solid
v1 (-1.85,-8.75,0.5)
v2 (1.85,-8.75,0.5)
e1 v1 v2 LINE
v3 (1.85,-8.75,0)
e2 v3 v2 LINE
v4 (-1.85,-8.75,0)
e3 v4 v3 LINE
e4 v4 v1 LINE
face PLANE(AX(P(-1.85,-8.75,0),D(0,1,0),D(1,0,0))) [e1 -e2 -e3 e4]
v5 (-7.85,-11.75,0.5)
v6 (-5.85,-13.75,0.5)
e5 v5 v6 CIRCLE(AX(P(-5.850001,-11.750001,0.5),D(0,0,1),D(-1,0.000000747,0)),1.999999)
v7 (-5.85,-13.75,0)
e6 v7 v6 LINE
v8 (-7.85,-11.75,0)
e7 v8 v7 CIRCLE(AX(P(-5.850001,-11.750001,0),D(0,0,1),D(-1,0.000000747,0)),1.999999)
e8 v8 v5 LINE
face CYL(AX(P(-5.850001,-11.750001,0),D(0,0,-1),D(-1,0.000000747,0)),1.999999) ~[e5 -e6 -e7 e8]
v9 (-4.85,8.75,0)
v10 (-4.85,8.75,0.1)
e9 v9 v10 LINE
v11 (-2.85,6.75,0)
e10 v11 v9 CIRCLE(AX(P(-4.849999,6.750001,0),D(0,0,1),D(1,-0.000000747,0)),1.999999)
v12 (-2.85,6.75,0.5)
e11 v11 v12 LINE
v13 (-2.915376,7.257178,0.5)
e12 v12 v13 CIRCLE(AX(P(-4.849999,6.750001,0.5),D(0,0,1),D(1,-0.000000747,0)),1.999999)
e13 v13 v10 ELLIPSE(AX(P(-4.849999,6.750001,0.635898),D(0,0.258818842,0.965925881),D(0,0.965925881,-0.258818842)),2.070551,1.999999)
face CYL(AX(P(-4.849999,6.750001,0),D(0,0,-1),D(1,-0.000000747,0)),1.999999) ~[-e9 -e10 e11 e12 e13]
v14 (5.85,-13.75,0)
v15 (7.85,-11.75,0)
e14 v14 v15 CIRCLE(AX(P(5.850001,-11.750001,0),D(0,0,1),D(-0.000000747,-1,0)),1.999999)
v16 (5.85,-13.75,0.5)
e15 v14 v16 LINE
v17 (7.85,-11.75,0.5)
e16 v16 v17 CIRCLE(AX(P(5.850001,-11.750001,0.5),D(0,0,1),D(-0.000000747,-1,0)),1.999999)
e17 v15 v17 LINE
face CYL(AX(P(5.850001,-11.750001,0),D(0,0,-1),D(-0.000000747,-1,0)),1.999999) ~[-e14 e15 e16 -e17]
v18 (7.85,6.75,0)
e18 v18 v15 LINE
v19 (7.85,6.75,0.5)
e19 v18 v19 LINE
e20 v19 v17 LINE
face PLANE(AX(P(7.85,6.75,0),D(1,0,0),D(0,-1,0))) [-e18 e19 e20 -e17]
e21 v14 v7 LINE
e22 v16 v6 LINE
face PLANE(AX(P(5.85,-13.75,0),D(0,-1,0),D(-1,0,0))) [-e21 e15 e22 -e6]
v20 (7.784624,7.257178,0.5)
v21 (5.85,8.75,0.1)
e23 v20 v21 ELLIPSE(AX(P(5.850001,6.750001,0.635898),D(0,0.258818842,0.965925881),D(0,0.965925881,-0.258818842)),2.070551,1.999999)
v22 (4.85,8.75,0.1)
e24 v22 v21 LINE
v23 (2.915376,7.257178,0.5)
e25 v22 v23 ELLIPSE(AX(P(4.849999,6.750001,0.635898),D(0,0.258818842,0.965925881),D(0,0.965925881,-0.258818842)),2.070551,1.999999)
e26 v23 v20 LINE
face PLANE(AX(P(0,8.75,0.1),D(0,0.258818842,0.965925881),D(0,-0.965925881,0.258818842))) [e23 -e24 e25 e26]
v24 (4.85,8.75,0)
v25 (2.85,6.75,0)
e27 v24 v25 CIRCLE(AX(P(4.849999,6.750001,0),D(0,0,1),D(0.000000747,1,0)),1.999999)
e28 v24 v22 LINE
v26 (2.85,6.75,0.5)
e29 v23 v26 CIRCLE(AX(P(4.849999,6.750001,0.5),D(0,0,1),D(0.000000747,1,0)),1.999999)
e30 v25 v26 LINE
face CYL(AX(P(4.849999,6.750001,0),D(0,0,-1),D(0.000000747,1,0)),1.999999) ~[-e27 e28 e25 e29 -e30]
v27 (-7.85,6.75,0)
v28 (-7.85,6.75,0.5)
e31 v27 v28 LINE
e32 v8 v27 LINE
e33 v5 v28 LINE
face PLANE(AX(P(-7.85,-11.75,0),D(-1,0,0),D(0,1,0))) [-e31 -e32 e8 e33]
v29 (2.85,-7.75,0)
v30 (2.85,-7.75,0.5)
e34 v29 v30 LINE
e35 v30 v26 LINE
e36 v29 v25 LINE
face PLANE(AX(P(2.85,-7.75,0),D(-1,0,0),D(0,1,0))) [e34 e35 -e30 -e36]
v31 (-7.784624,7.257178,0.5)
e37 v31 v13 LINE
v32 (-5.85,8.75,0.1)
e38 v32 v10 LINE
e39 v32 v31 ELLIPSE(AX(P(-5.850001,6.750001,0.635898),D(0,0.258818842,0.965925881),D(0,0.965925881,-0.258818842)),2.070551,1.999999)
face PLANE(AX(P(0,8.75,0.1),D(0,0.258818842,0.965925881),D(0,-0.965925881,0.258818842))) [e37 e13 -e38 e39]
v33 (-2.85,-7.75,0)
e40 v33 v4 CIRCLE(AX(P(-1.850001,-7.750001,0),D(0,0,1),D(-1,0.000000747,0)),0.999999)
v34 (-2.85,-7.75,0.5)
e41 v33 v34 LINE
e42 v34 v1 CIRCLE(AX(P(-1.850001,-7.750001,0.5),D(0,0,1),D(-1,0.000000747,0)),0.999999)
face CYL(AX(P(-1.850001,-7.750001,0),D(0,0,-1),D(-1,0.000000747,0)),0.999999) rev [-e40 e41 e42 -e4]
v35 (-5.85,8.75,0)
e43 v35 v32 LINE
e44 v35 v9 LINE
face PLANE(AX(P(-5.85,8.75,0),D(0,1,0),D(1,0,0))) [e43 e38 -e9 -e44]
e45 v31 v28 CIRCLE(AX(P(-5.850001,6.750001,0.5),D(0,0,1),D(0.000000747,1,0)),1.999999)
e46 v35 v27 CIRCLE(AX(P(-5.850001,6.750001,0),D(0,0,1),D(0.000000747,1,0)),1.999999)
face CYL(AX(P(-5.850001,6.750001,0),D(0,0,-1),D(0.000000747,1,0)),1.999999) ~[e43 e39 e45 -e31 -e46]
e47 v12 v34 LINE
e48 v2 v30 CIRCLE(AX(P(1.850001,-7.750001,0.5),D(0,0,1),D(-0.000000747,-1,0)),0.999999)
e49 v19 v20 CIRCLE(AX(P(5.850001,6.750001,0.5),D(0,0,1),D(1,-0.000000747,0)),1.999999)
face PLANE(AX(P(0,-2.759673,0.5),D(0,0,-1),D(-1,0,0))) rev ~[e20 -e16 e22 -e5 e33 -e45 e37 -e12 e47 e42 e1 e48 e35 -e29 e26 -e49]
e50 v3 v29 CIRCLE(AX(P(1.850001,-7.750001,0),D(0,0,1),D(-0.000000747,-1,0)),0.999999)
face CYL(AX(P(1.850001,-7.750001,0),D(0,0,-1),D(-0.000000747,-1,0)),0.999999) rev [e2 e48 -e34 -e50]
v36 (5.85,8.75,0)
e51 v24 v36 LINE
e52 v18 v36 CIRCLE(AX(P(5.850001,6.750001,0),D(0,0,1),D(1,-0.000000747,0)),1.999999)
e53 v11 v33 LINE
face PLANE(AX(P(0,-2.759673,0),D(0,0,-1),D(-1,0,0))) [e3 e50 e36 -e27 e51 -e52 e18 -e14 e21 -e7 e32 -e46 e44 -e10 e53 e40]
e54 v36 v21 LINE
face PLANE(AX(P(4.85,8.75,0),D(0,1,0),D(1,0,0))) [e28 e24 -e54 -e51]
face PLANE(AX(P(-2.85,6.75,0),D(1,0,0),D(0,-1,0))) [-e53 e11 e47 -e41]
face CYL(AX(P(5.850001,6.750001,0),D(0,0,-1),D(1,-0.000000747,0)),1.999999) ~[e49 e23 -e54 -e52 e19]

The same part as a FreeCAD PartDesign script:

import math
import FreeCAD as App
import Part
import Sketcher

V = App.Vector
Q = App.Units.Quantity

doc = App.newDocument("Part")
params = doc.addObject("Spreadsheet::Sheet", "Params")
for row, (alias, value) in enumerate([
    ("pad1_length", "40 mm"),
    ("sketch2_radius", "1.999999 mm"),
    ("sketch2_radius2", "0.999999 mm"),
    ("sketch2_width", "1 mm"),
    ("sketch2_width2", "11.7 mm"),
    ("sketch2_height", "14.5 mm"),
    ("pad2_length", "0.5 mm"),
], start=1):
    params.set(f"A{row}", alias)
    params.set(f"B{row}", "=" + value)
    params.setAlias(f"B{row}", alias)

body = doc.addObject("PartDesign::Body", "Body")

sketch1 = doc.addObject("Sketcher::SketchObject", "Sketch")
body.addObject(sketch1)
sketch1.AttachmentSupport = (doc.YZ_Plane, [""])
sketch1.MapMode = "FlatFace"
sketch1.addGeometry(Part.LineSegment(V(6.329819, 0.748485, 0), V(8.75, 0.1, 0)), False)
sketch1.addGeometry(Part.LineSegment(V(8.75, 0.1, 0), V(8.75, 0.748485, 0)), False)
sketch1.addGeometry(Part.LineSegment(V(8.75, 0.748485, 0), V(6.329819, 0.748485, 0)), False)
sketch1.addConstraint(Sketcher.Constraint("Coincident", 0, 2, 1, 1))
sketch1.addConstraint(Sketcher.Constraint("Coincident", 1, 2, 2, 1))
sketch1.addConstraint(Sketcher.Constraint("Coincident", 2, 2, 0, 1))
sketch1.addConstraint(Sketcher.Constraint("Vertical", 1))
sketch1.addConstraint(Sketcher.Constraint("Horizontal", 2))
sketch1.addConstraint(Sketcher.Constraint("Angle", 0, Q("-14.999988 deg")))
sketch1.addConstraint(Sketcher.Constraint("DistanceY", -1, 1, 0, 2, 0.1))
sketch1.addConstraint(Sketcher.Constraint("DistanceX", -1, 1, 0, 2, 8.75))
sketch1.addConstraint(Sketcher.Constraint("DistanceX", 2, 2, 2, 1, 2.420181))
pad1 = doc.addObject("PartDesign::Pad", "Pad")
body.addObject(pad1)
pad1.Profile = sketch1
pad1.setExpression("Length", "Params.pad1_length")
pad1.Midplane = True
body2 = doc.addObject("PartDesign::Body", "Body001")

sketch2 = doc.addObject("Sketcher::SketchObject", "Sketch001")
body2.addObject(sketch2)
sketch2.AttachmentSupport = (doc.getObject("XY_Plane001"), [""])
sketch2.MapMode = "FlatFace"
sketch2.addGeometry(Part.LineSegment(V(-2.85, -7.75, 0), V(-2.85, 6.75, 0)), False)
sketch2.addGeometry(Part.ArcOfCircle(Part.Circle(V(-4.849999, 6.750001, 0), V(0, 0, 1), 1.999999), math.radians(-0.000043), math.radians(90.000043)), False)
sketch2.addGeometry(Part.LineSegment(V(-4.85, 8.75, 0), V(-5.85, 8.75, 0)), False)
sketch2.addGeometry(Part.ArcOfCircle(Part.Circle(V(-5.850001, 6.750001, 0), V(0, 0, 1), 1.999999), math.radians(89.999957), math.radians(180.000043)), False)
sketch2.addGeometry(Part.LineSegment(V(-7.85, 6.75, 0), V(-7.85, -11.75, 0)), False)
sketch2.addGeometry(Part.ArcOfCircle(Part.Circle(V(-5.850001, -11.750001, 0), V(0, 0, 1), 1.999999), math.radians(179.999957), math.radians(270.000043)), False)
sketch2.addGeometry(Part.LineSegment(V(-5.85, -13.75, 0), V(5.85, -13.75, 0)), False)
sketch2.addGeometry(Part.ArcOfCircle(Part.Circle(V(5.850001, -11.750001, 0), V(0, 0, 1), 1.999999), math.radians(-90.000043), math.radians(0.000043)), False)
sketch2.addGeometry(Part.LineSegment(V(7.85, -11.75, 0), V(7.85, 6.75, 0)), False)
sketch2.addGeometry(Part.ArcOfCircle(Part.Circle(V(5.850001, 6.750001, 0), V(0, 0, 1), 1.999999), math.radians(-0.000043), math.radians(90.000043)), False)
sketch2.addGeometry(Part.LineSegment(V(5.85, 8.75, 0), V(4.85, 8.75, 0)), False)
sketch2.addGeometry(Part.ArcOfCircle(Part.Circle(V(4.849999, 6.750001, 0), V(0, 0, 1), 1.999999), math.radians(89.999957), math.radians(180.000043)), False)
sketch2.addGeometry(Part.LineSegment(V(2.85, 6.75, 0), V(2.85, -7.75, 0)), False)
sketch2.addGeometry(Part.ArcOfCircle(Part.Circle(V(1.850001, -7.750001, 0), V(0, 0, 1), 0.999999), math.radians(-90.000043), math.radians(0.000043)), False)
sketch2.addGeometry(Part.LineSegment(V(1.85, -8.75, 0), V(-1.85, -8.75, 0)), False)
sketch2.addGeometry(Part.ArcOfCircle(Part.Circle(V(-1.850001, -7.750001, 0), V(0, 0, 1), 0.999999), math.radians(179.999957), math.radians(270.000043)), False)
sketch2.addConstraint(Sketcher.Constraint("Tangent", 0, 2, 1, 1))
sketch2.addConstraint(Sketcher.Constraint("Tangent", 1, 2, 2, 1))
sketch2.addConstraint(Sketcher.Constraint("Tangent", 2, 2, 3, 1))
sketch2.addConstraint(Sketcher.Constraint("Tangent", 3, 2, 4, 1))
sketch2.addConstraint(Sketcher.Constraint("Tangent", 4, 2, 5, 1))
sketch2.addConstraint(Sketcher.Constraint("Tangent", 5, 2, 6, 1))
sketch2.addConstraint(Sketcher.Constraint("Tangent", 6, 2, 7, 1))
sketch2.addConstraint(Sketcher.Constraint("Tangent", 7, 2, 8, 1))
sketch2.addConstraint(Sketcher.Constraint("Tangent", 8, 2, 9, 1))
sketch2.addConstraint(Sketcher.Constraint("Tangent", 9, 2, 10, 1))
sketch2.addConstraint(Sketcher.Constraint("Tangent", 10, 2, 11, 1))
sketch2.addConstraint(Sketcher.Constraint("Tangent", 11, 2, 12, 1))
sketch2.addConstraint(Sketcher.Constraint("Tangent", 12, 2, 13, 2))
sketch2.addConstraint(Sketcher.Constraint("Tangent", 13, 1, 14, 1))
sketch2.addConstraint(Sketcher.Constraint("Tangent", 14, 2, 15, 2))
sketch2.addConstraint(Sketcher.Constraint("Tangent", 15, 1, 0, 1))
sketch2.addConstraint(Sketcher.Constraint("Vertical", 0))
sketch2.addConstraint(Sketcher.Constraint("Horizontal", 2))
sketch2.addConstraint(Sketcher.Constraint("Vertical", 4))
sketch2.addConstraint(Sketcher.Constraint("Horizontal", 6))
sketch2.addConstraint(Sketcher.Constraint("Vertical", 8))
sketch2.addConstraint(Sketcher.Constraint("Horizontal", 10))
sketch2.addConstraint(Sketcher.Constraint("Vertical", 12))
sketch2.addConstraint(Sketcher.Constraint("Horizontal", 14))
sketch2.addConstraint(Sketcher.Constraint("Equal", 1, 3))
sketch2.addConstraint(Sketcher.Constraint("Equal", 3, 5))
sketch2.addConstraint(Sketcher.Constraint("Equal", 5, 7))
sketch2.addConstraint(Sketcher.Constraint("Equal", 7, 9))
sketch2.addConstraint(Sketcher.Constraint("Equal", 9, 11))
sketch2.addConstraint(Sketcher.Constraint("Equal", 13, 15))
sketch2.addConstraint(Sketcher.Constraint("Symmetric", 3, 3, 9, 3, -2))
sketch2.addConstraint(Sketcher.Constraint("Equal", 2, 10))
sketch2.addConstraint(Sketcher.Constraint("Radius", 1, 1.999999))
sketch2.addConstraint(Sketcher.Constraint("Radius", 13, 0.999999))
sketch2.addConstraint(Sketcher.Constraint("DistanceX", 2, 2, 2, 1, 1.0))
sketch2.addConstraint(Sketcher.Constraint("DistanceX", 6, 1, 6, 2, 11.7))
sketch2.addConstraint(Sketcher.Constraint("DistanceY", 0, 1, 0, 2, 14.5))
sketch2.addConstraint(Sketcher.Constraint("DistanceY", 4, 2, 4, 1, 18.5))
sketch2.addConstraint(Sketcher.Constraint("DistanceY", -1, 1, 1, 3, 6.750001))
sketch2.setExpression("Constraints[32]", "Params.sketch2_radius")
sketch2.setExpression("Constraints[33]", "Params.sketch2_radius2")
sketch2.setExpression("Constraints[34]", "Params.sketch2_width")
sketch2.setExpression("Constraints[35]", "Params.sketch2_width2")
sketch2.setExpression("Constraints[36]", "Params.sketch2_height")
pad2 = doc.addObject("PartDesign::Pad", "Pad001")
body2.addObject(pad2)
pad2.Profile = sketch2
pad2.setExpression("Length", "Params.pad2_length")
doc.recompute()

boolean = doc.addObject("PartDesign::Boolean", "Boolean")
body2.addObject(boolean)
boolean.Type = "Cut"
boolean.addObjects([body])

doc.recompute()
